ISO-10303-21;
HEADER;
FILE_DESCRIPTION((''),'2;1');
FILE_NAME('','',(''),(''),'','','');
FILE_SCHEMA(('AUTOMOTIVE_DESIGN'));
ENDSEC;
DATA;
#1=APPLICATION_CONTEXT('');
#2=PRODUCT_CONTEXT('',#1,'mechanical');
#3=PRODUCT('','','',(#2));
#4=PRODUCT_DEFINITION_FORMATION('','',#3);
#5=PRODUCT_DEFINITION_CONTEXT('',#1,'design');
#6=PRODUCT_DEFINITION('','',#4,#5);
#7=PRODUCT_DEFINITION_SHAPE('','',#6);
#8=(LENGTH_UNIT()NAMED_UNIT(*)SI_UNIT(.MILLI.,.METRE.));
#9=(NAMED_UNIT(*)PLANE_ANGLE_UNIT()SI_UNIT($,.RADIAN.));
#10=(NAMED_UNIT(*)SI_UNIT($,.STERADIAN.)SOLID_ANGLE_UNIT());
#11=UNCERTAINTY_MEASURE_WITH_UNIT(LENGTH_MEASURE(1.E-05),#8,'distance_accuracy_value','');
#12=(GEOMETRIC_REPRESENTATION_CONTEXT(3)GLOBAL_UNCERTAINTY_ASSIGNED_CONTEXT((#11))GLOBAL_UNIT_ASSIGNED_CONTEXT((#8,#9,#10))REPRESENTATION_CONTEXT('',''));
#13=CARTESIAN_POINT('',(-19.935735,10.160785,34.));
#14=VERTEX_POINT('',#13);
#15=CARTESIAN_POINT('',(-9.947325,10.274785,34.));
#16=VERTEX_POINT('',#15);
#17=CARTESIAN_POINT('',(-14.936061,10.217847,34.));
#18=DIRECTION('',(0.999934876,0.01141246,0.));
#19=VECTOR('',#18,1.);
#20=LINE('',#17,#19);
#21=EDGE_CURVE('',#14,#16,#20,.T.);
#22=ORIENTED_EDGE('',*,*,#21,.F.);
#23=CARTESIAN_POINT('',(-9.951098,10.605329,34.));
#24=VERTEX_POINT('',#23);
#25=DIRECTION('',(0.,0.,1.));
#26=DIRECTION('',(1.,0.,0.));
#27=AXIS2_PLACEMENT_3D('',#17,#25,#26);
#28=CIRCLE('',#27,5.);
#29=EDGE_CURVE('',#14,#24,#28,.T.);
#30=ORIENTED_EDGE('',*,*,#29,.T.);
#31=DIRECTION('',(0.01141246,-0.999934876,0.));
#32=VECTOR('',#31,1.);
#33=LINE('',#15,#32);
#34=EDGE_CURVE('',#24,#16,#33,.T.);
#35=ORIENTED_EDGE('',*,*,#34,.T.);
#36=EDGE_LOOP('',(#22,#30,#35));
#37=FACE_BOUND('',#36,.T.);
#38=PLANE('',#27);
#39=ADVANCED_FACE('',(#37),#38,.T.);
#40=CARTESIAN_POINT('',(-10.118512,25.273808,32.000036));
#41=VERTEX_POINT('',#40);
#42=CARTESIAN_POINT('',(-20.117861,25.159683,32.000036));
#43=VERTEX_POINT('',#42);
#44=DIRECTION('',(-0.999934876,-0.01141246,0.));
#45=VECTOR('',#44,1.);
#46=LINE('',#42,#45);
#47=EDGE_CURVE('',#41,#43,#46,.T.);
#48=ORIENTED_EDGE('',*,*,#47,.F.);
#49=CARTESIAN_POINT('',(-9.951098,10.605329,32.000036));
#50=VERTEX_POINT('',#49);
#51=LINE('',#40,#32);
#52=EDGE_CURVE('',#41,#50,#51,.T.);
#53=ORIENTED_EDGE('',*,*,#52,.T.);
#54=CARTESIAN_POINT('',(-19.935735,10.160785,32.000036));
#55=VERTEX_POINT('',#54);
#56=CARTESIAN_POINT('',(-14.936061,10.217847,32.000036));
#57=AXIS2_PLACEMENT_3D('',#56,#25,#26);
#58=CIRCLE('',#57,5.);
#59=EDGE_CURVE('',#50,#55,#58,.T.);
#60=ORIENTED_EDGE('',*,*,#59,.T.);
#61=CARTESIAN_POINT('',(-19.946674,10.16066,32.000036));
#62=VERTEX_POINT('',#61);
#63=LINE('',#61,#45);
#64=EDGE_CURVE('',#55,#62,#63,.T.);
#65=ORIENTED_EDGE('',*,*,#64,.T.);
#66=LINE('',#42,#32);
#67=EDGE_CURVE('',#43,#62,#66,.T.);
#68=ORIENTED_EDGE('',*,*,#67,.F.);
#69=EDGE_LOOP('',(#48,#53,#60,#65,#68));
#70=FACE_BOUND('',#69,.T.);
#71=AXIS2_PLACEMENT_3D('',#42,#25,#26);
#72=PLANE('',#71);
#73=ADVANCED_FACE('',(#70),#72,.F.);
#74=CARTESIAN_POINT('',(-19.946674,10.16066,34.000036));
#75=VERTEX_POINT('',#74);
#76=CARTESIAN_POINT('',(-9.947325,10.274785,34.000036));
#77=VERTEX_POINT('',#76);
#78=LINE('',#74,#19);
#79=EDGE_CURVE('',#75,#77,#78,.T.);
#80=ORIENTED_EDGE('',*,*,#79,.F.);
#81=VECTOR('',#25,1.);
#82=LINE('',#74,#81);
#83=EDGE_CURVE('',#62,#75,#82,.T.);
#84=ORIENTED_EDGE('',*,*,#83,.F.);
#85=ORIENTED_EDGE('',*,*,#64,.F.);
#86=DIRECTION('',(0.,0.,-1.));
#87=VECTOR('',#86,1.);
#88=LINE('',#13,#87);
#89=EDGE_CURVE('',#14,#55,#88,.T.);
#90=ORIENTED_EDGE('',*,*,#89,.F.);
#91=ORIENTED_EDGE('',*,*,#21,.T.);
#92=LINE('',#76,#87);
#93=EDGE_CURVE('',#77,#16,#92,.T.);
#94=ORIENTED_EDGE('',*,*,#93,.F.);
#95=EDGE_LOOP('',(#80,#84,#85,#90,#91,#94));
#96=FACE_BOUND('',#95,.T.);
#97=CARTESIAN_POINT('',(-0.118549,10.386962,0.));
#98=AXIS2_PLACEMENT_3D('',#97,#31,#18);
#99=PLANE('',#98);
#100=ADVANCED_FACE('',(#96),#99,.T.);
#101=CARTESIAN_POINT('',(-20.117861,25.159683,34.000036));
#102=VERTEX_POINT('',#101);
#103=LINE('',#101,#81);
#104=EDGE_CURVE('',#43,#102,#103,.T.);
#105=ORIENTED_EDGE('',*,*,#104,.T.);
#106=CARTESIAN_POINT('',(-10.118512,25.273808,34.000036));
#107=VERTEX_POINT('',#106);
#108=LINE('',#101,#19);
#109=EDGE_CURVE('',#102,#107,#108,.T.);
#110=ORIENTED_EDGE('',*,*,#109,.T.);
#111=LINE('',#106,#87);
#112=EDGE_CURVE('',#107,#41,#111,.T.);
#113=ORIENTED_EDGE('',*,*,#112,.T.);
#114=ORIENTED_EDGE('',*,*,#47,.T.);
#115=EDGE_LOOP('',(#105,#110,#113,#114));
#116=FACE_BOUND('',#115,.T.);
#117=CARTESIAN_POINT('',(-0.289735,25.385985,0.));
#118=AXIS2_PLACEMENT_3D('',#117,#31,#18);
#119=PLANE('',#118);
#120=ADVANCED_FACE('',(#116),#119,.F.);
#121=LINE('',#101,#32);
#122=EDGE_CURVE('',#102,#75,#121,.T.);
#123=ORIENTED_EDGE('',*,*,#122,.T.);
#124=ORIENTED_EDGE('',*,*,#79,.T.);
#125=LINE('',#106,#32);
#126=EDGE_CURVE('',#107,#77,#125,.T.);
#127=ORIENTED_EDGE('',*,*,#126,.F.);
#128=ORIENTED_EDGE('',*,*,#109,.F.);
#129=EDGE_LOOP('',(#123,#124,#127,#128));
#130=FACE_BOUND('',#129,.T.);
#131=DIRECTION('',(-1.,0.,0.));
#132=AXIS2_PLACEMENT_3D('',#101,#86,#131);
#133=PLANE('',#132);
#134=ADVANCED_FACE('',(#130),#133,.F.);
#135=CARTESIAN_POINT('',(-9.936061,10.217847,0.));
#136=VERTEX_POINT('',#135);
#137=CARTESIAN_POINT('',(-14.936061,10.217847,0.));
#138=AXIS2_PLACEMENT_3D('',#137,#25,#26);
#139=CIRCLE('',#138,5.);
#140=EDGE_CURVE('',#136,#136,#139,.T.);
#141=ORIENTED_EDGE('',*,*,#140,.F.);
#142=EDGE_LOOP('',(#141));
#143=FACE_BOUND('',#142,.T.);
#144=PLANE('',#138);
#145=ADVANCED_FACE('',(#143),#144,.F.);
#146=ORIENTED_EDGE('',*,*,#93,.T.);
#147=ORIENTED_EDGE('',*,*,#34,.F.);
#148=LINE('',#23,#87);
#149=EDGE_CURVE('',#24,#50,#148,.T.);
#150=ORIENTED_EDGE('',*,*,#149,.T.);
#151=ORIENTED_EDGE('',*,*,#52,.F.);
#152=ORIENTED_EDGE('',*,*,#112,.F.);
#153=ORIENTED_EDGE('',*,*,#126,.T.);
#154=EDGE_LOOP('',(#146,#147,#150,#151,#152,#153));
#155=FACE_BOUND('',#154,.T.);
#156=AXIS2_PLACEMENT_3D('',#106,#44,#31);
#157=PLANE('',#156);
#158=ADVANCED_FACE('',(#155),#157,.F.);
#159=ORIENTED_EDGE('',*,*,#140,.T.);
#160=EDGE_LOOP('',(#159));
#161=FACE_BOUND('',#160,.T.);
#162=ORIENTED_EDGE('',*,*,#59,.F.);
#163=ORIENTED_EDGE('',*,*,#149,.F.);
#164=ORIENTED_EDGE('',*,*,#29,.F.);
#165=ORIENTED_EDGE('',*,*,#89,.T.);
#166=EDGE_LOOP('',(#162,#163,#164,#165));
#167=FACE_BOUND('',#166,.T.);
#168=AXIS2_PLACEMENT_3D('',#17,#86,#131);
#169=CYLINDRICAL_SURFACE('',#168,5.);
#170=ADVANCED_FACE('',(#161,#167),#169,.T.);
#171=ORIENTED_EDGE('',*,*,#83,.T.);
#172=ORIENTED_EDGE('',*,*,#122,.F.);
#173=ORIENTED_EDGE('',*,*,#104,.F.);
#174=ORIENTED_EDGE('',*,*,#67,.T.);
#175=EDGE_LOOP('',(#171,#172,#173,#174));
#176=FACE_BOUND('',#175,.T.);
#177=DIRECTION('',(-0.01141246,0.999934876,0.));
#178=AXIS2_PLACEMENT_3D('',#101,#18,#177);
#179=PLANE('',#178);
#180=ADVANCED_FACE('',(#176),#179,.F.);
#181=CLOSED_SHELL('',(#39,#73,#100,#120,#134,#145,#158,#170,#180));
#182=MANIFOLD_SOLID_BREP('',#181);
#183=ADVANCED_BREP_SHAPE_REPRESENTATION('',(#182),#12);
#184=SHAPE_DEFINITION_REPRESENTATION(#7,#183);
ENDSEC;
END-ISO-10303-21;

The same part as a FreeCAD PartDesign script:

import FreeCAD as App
import Part
import Sketcher
Q = App.Units.Quantity


def add_polygon(sketch, points):
    """Adds a closed chain of lines whose ends are joined by coincident constraints."""
    first, n = sketch.GeometryCount, len(points)
    for a, b in zip(points, points[1:] + points[:1]):
        sketch.addGeometry(Part.LineSegment(App.Vector(*a, 0), App.Vector(*b, 0)), False)
    for i in range(n):
        sketch.addConstraint(Sketcher.Constraint("Coincident", first + i, 2, first + (i + 1) % n, 1))

doc = App.newDocument("Part")
body = doc.addObject("PartDesign::Body", "Body")

# Sketch on XY plane
sketch1 = body.newObject("Sketcher::SketchObject", "Sketch")
sketch1.AttachmentSupport = (doc.getObject("XY_Plane"), [""])
sketch1.MapMode = "FlatFace"
sketch1.addGeometry(Part.Circle(App.Vector(-14.936061, 10.217847, 0), App.Vector(0, 0, 1), 5), False)
sketch1.addConstraint(Sketcher.Constraint("Diameter", 0, Q("10 mm")))
sketch1.addConstraint(Sketcher.Constraint("DistanceX", 0, 3, -1, 1, Q("14.936061 mm")))
sketch1.addConstraint(Sketcher.Constraint("DistanceY", -1, 1, 0, 3, Q("10.217847 mm")))
pad1 = body.newObject("PartDesign::Pad", "Pad")
pad1.Profile = sketch1
pad1.Length = 34

# Sketch on an angled plane
sketch2 = body.newObject("Sketcher::SketchObject", "Sketch001")
sketch2.Placement = App.Placement(App.Vector(-0.118549, 10.386962, 0), App.Rotation(App.Vector(0.999934876, 0.01141246, 0), App.Vector(0, 0, -1), App.Vector(-0.01141246, 0.999934876, 0), "ZXY"))
add_polygon(sketch2, [(-19.829417, -32.000036), (-19.829417, -34.000036), (-9.829417, -34.000036), (-9.829417, -32.000036)])  # lines 0-3
sketch2.addConstraint(Sketcher.Constraint("Vertical", 0))
sketch2.addConstraint(Sketcher.Constraint("Horizontal", 1))
sketch2.addConstraint(Sketcher.Constraint("Vertical", 2))
sketch2.addConstraint(Sketcher.Constraint("Horizontal", 3))
sketch2.addConstraint(Sketcher.Constraint("DistanceX", 1, 1, 1, 2, Q("10 mm")))
sketch2.addConstraint(Sketcher.Constraint("DistanceY", 0, 2, 0, 1, Q("2 mm")))
sketch2.addConstraint(Sketcher.Constraint("DistanceX", 0, 2, -1, 1, Q("19.829417 mm")))
sketch2.addConstraint(Sketcher.Constraint("DistanceY", 0, 2, -1, 1, Q("34.000036 mm")))
pad2 = body.newObject("PartDesign::Pad", "Pad001")
pad2.Profile = sketch2
pad2.Length = 15

doc.recompute()
